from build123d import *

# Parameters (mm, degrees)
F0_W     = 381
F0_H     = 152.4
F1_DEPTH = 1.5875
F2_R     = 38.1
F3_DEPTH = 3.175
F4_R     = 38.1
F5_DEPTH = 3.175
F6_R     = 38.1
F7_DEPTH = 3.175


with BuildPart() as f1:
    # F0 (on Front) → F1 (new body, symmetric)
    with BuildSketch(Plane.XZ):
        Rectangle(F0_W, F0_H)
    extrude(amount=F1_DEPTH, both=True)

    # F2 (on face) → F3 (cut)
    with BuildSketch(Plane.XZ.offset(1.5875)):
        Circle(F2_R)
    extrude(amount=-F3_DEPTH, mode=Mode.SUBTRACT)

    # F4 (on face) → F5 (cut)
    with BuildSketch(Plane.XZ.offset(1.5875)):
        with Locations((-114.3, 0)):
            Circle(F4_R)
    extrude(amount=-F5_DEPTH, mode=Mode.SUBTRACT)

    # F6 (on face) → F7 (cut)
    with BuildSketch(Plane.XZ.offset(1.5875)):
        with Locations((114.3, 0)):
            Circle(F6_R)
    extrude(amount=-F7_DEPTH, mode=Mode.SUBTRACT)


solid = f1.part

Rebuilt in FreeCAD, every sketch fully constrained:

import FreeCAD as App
import Part
import Sketcher
from FreeCAD import Vector
Q = App.Units.Quantity


def add_polygon(sketch, points):
    """Adds a closed chain of lines whose ends are joined by coincident constraints."""
    first, n = sketch.GeometryCount, len(points)
    for a, b in zip(points, points[1:] + points[:1]):
        sketch.addGeometry(Part.LineSegment(App.Vector(*a, 0), App.Vector(*b, 0)), False)
    for i in range(n):
        sketch.addConstraint(Sketcher.Constraint("Coincident", first + i, 2, first + (i + 1) % n, 1))

doc = App.newDocument("Part")
params = doc.addObject("Spreadsheet::Sheet", "Params")
for row, (alias, value) in enumerate([
    ("sketch1_width", "15 in"),
    ("sketch1_height", "6 in"),
    ("pad1_length", "0.125 in"),
    ("sketch2_diameter", "3 in"),
    ("pocket1_length", "0.125 in"),
    ("sketch3_diameter", "3 in"),
    ("pocket2_length", "0.125 in"),
    ("sketch4_diameter", "3 in"),
    ("pocket3_length", "0.125 in"),
], start=1):
    params.set(f"A{row}", alias)
    params.set(f"B{row}", "=" + value)
    params.setAlias(f"B{row}", alias)

body = doc.addObject("PartDesign::Body", "Body")

# Sketch on XZ plane
sketch1 = body.newObject("Sketcher::SketchObject", "Sketch")
sketch1.AttachmentSupport = (doc.getObject("XZ_Plane"), [""])
sketch1.MapMode = "FlatFace"
add_polygon(sketch1, [(-190, 76), (-190, -76), (190, -76), (190, 76)])  # lines 0-3
sketch1.addConstraint(Sketcher.Constraint("Vertical", 0))
sketch1.addConstraint(Sketcher.Constraint("Horizontal", 1))
sketch1.addConstraint(Sketcher.Constraint("Vertical", 2))
sketch1.addConstraint(Sketcher.Constraint("Horizontal", 3))
sketch1.addConstraint(Sketcher.Constraint("Symmetric", 0, 2, 2, 2, -1, 1))
sketch1.addConstraint(Sketcher.Constraint("DistanceX", 1, 1, 1, 2, Q("15 in")))
sketch1.addConstraint(Sketcher.Constraint("DistanceY", 0, 2, 0, 1, Q("6 in")))
sketch1.setExpression("Constraints[9]", "Params.sketch1_width")
sketch1.setExpression("Constraints[10]", "Params.sketch1_height")
pad1 = body.newObject("PartDesign::Pad", "Pad")
pad1.Profile = sketch1
pad1.setExpression("Length", "Params.pad1_length")
pad1.Midplane = True

# Sketch on XZ plane
sketch2 = body.newObject("Sketcher::SketchObject", "Sketch001")
sketch2.AttachmentSupport = (doc.getObject("XZ_Plane"), [""])
sketch2.MapMode = "FlatFace"
sketch2.AttachmentOffset = App.Placement(Vector(0, 0, 0.0625 * 25.4), App.Rotation())
sketch2.addGeometry(Part.Circle(Vector(0, 0, 0), Vector(0, 0, 1), 38), False)
sketch2.addConstraint(Sketcher.Constraint("Coincident", 0, 3, -1, 1))
sketch2.addConstraint(Sketcher.Constraint("Diameter", 0, Q("3 in")))
sketch2.setExpression("Constraints[1]", "Params.sketch2_diameter")
pocket1 = body.newObject("PartDesign::Pocket", "Pocket")
pocket1.Profile = sketch2
pocket1.setExpression("Length", "Params.pocket1_length")

# Sketch on XZ plane
sketch3 = body.newObject("Sketcher::SketchObject", "Sketch002")
sketch3.AttachmentSupport = (doc.getObject("XZ_Plane"), [""])
sketch3.MapMode = "FlatFace"
sketch3.AttachmentOffset = App.Placement(Vector(0, 0, 0.0625 * 25.4), App.Rotation())
sketch3.addGeometry(Part.Circle(Vector(-114, 0, 0), Vector(0, 0, 1), 38), False)
sketch3.addConstraint(Sketcher.Constraint("PointOnObject", 0, 3, -1))
sketch3.addConstraint(Sketcher.Constraint("Diameter", 0, Q("3 in")))
sketch3.addConstraint(Sketcher.Constraint("DistanceX", 0, 3, -1, 1, Q("4.5 in")))
sketch3.setExpression("Constraints[1]", "Params.sketch3_diameter")
pocket2 = body.newObject("PartDesign::Pocket", "Pocket001")
pocket2.Profile = sketch3
pocket2.setExpression("Length", "Params.pocket2_length")

# Sketch on XZ plane
sketch4 = body.newObject("Sketcher::SketchObject", "Sketch003")
sketch4.AttachmentSupport = (doc.getObject("XZ_Plane"), [""])
sketch4.MapMode = "FlatFace"
sketch4.AttachmentOffset = App.Placement(Vector(0, 0, 0.0625 * 25.4), App.Rotation())
sketch4.addGeometry(Part.Circle(Vector(114, 0, 0), Vector(0, 0, 1), 38), False)
sketch4.addConstraint(Sketcher.Constraint("PointOnObject", 0, 3, -1))
sketch4.addConstraint(Sketcher.Constraint("Diameter", 0, Q("3 in")))
sketch4.addConstraint(Sketcher.Constraint("DistanceX", -1, 1, 0, 3, Q("4.5 in")))
sketch4.setExpression("Constraints[1]", "Params.sketch4_diameter")
pocket3 = body.newObject("PartDesign::Pocket", "Pocket002")
pocket3.Profile = sketch4
pocket3.setExpression("Length", "Params.pocket3_length")

doc.recompute()
